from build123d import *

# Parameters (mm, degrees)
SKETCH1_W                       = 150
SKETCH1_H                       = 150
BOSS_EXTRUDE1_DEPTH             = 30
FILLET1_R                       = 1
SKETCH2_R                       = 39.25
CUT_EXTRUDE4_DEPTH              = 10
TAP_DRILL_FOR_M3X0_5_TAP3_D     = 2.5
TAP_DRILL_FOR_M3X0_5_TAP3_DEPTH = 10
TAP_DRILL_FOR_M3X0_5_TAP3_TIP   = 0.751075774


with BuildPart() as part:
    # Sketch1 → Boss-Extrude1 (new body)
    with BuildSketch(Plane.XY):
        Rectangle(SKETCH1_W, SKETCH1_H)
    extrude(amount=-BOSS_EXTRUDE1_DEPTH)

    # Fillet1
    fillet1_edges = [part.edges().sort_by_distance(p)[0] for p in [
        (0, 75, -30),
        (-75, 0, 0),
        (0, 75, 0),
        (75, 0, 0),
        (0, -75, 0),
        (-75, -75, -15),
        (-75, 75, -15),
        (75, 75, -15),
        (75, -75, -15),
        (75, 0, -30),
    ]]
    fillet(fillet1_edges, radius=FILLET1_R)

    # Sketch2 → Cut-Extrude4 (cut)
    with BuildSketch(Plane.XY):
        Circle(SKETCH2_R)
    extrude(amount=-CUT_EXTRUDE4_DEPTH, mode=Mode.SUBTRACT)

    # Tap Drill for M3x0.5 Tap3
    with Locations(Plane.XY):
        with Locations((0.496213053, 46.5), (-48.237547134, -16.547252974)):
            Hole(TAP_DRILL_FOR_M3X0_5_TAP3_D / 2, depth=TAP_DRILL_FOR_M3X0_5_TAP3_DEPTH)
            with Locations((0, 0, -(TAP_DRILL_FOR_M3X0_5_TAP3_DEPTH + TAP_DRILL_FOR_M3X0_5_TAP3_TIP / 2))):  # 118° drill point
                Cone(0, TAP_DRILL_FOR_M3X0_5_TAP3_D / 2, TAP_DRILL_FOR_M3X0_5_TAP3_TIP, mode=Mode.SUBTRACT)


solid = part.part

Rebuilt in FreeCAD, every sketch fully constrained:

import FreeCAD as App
import Part
import Sketcher

V = App.Vector
Q = App.Units.Quantity


def edges_at(feature, points):
    """Names of the edges that pass closest to the given points."""
    edges = feature.Shape.Edges
    near = lambda p: min(range(len(edges)), key=lambda i: edges[i].distToShape(Part.Vertex(*p))[0])
    return sorted({f"Edge{near(p) + 1}" for p in points})


def add_polygon(sketch, points):
    """Adds a closed chain of lines whose ends are joined by coincident constraints."""
    first, n = sketch.GeometryCount, len(points)
    for a, b in zip(points, points[1:] + points[:1]):
        sketch.addGeometry(Part.LineSegment(App.Vector(*a, 0), App.Vector(*b, 0)), False)
    for i in range(n):
        sketch.addConstraint(Sketcher.Constraint("Coincident", first + i, 2, first + (i + 1) % n, 1))

doc = App.newDocument("Part")
body = doc.addObject("PartDesign::Body", "Body")

# Sketch on XY plane
sketch1 = doc.addObject("Sketcher::SketchObject", "Sketch")
body.addObject(sketch1)
sketch1.AttachmentSupport = (doc.XY_Plane, [""])
sketch1.MapMode = "FlatFace"
add_polygon(sketch1, [(-75, 75), (-75, -75), (75, -75), (75, 75)])  # lines 0-3
sketch1.addConstraint(Sketcher.Constraint("Vertical", 0))
sketch1.addConstraint(Sketcher.Constraint("Horizontal", 1))
sketch1.addConstraint(Sketcher.Constraint("Vertical", 2))
sketch1.addConstraint(Sketcher.Constraint("Horizontal", 3))
sketch1.addConstraint(Sketcher.Constraint("Symmetric", 0, 2, 2, 2, -1, 1))
sketch1.addConstraint(Sketcher.Constraint("Equal", 3, 0))
sketch1.addConstraint(Sketcher.Constraint("DistanceX", 1, 1, 1, 2, Q("150 mm")))
pad1 = doc.addObject("PartDesign::Pad", "Pad")
body.addObject(pad1)
pad1.Profile = sketch1
pad1.Length = 30
pad1.Reversed = True
doc.recompute()

fillet = doc.addObject("PartDesign::Fillet", "Fillet")
body.addObject(fillet)
fillet.Base = (pad1, edges_at(pad1, [
    (0, 75, -30),
    (-75, 0, 0),
    (0, 75, 0),
    (75, 0, 0),
    (0, -75, 0),
    (-75, -75, -15),
    (-75, 75, -15),
    (75, 75, -15),
    (75, -75, -15),
    (75, 0, -30),
]))
fillet.Radius = 1

# Sketch on XY plane
sketch2 = doc.addObject("Sketcher::SketchObject", "Sketch001")
body.addObject(sketch2)
sketch2.AttachmentSupport = (doc.XY_Plane, [""])
sketch2.MapMode = "FlatFace"
sketch2.addGeometry(Part.Circle(V(0, 0, 0), V(0, 0, 1), 39), False)
sketch2.addConstraint(Sketcher.Constraint("Coincident", 0, 3, -1, 1))
sketch2.addConstraint(Sketcher.Constraint("Diameter", 0, Q("78.5 mm")))
pocket1 = doc.addObject("PartDesign::Pocket", "Pocket")
body.addObject(pocket1)
pocket1.Profile = sketch2
pocket1.Length = 10

# Sketch on XY plane
sketch3 = doc.addObject("Sketcher::SketchObject", "Sketch002")
body.addObject(sketch3)
sketch3.AttachmentSupport = (doc.XY_Plane, [""])
sketch3.MapMode = "FlatFace"
sketch3.addGeometry(Part.Circle(V(0.5, 46.5, 0), V(0, 0, 1), 1.2), False)
sketch3.addGeometry(Part.Circle(V(-48.2, -16.5, 0), V(0, 0, 1), 1.2), False)
sketch3.addConstraint(Sketcher.Constraint("Equal", 0, 1))
sketch3.addConstraint(Sketcher.Constraint("Diameter", 0, Q("2.5 mm")))
sketch3.addConstraint(Sketcher.Constraint("DistanceY", -1, 1, 0, 3, Q("46.5 mm")))
sketch3.addConstraint(Sketcher.Constraint("DistanceX", 1, 3, 0, 3, Q("48.73376 mm")))
sketch3.addConstraint(Sketcher.Constraint("DistanceX", -1, 1, 0, 3, Q("0.496213 mm")))
sketch3.addConstraint(Sketcher.Constraint("DistanceY", 1, 3, -1, 1, Q("16.547253 mm")))
doc.recompute()
hole = doc.addObject("PartDesign::Hole", "Hole")
body.addObject(hole)
hole.Profile = sketch3
hole.ThreadType = "None"
hole.Diameter = 2.5
hole.DepthType = "Dimension"
hole.Depth = 10
hole.DrillPoint = "Angled"
hole.DrillPointAngle = 118

doc.recompute()
